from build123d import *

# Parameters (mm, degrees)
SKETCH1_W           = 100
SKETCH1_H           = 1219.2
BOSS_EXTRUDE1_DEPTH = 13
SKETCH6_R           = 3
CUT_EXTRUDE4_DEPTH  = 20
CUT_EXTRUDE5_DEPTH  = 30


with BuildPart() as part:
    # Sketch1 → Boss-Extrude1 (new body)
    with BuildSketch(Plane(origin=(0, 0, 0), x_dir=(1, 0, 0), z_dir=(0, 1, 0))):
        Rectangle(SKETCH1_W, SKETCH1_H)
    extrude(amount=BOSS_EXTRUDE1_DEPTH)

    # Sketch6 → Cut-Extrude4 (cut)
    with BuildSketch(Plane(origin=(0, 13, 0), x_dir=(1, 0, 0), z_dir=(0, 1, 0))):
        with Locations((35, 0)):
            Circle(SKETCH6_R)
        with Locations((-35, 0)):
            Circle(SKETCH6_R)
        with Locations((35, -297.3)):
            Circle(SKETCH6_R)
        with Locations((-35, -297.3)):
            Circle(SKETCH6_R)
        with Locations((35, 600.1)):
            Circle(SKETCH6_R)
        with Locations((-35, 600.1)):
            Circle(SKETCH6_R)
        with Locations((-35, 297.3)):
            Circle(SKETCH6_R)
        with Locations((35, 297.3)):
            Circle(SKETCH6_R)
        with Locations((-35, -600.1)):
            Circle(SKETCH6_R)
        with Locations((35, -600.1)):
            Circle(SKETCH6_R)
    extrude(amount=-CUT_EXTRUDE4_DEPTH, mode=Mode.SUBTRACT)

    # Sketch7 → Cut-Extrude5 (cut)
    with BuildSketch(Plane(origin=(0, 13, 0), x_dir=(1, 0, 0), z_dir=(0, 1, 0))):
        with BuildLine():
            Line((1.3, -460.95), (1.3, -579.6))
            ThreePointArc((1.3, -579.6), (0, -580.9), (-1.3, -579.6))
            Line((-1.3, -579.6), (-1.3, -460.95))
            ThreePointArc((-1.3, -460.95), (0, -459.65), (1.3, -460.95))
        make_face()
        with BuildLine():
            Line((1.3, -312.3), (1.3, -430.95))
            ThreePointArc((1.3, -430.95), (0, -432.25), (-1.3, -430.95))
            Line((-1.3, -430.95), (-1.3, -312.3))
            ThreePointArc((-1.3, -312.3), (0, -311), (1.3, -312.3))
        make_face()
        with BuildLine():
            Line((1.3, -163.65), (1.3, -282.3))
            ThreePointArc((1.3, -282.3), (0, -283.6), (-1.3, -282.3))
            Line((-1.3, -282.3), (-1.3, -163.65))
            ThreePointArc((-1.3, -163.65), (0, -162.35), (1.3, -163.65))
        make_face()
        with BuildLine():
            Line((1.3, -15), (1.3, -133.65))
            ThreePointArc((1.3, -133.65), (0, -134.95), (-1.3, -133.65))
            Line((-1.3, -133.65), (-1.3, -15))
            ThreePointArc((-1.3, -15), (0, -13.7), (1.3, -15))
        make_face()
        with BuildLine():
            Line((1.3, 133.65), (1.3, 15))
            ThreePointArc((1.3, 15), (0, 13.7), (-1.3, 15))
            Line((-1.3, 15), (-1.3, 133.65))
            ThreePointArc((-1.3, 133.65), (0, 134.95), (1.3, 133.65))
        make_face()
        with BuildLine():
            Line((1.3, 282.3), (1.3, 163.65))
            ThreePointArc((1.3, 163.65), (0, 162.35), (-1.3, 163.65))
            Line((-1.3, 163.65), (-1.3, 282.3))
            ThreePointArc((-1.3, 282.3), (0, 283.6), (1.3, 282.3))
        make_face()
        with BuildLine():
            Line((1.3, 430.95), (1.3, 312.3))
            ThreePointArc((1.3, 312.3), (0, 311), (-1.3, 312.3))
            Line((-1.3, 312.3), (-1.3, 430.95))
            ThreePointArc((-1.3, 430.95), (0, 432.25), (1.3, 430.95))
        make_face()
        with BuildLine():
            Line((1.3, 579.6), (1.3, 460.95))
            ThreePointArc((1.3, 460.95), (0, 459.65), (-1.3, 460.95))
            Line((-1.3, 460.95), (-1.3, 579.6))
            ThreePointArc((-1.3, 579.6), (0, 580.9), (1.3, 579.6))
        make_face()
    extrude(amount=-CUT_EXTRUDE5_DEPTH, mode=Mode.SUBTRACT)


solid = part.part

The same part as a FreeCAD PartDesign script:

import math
import FreeCAD as App
import Part
import Sketcher

doc = App.newDocument("Part")
body = doc.addObject("PartDesign::Body", "Body")

# Sketch on XZ plane
sketch1 = body.newObject("Sketcher::SketchObject", "Sketch")
sketch1.AttachmentSupport = (doc.getObject("XZ_Plane"), [""])
sketch1.MapMode = "FlatFace"
sketch1.addGeometry(Part.LineSegment(App.Vector(-50, -609.6, 0), App.Vector(-50, 609.6, 0)), False)
sketch1.addGeometry(Part.LineSegment(App.Vector(-50, 609.6, 0), App.Vector(50, 609.6, 0)), False)
sketch1.addGeometry(Part.LineSegment(App.Vector(50, 609.6, 0), App.Vector(50, -609.6, 0)), False)
sketch1.addGeometry(Part.LineSegment(App.Vector(50, -609.6, 0), App.Vector(-50, -609.6, 0)), False)
sketch1.addConstraint(Sketcher.Constraint("Coincident", 0, 2, 1, 1))
sketch1.addConstraint(Sketcher.Constraint("Coincident", 1, 2, 2, 1))
sketch1.addConstraint(Sketcher.Constraint("Coincident", 2, 2, 3, 1))
sketch1.addConstraint(Sketcher.Constraint("Coincident", 3, 2, 0, 1))
sketch1.addConstraint(Sketcher.Constraint("Vertical", 0))
sketch1.addConstraint(Sketcher.Constraint("Horizontal", 1))
sketch1.addConstraint(Sketcher.Constraint("Vertical", 2))
sketch1.addConstraint(Sketcher.Constraint("Horizontal", 3))
sketch1.addConstraint(Sketcher.Constraint("Symmetric", 0, 2, 2, 2, -1, 1))
sketch1.addConstraint(Sketcher.Constraint("DistanceX", 1, 1, 1, 2, 100.0))
sketch1.addConstraint(Sketcher.Constraint("DistanceY", 0, 1, 0, 2, 1219.2))
pad1 = body.newObject("PartDesign::Pad", "Pad")
pad1.Profile = sketch1
pad1.Length = 13
pad1.Reversed = True

# Sketch on XZ plane
sketch2 = body.newObject("Sketcher::SketchObject", "Sketch001")
sketch2.AttachmentSupport = (doc.getObject("XZ_Plane"), [""])
sketch2.MapMode = "FlatFace"
sketch2.AttachmentOffset = App.Placement(App.Vector(0, 0, -13), App.Rotation())
sketch2.addGeometry(Part.Circle(App.Vector(35, 0, 0), App.Vector(0, 0, 1), 3), False)
sketch2.addGeometry(Part.Circle(App.Vector(-35, 0, 0), App.Vector(0, 0, 1), 3), False)
sketch2.addGeometry(Part.Circle(App.Vector(35, 297.3, 0), App.Vector(0, 0, 1), 3), False)
sketch2.addGeometry(Part.Circle(App.Vector(-35, 297.3, 0), App.Vector(0, 0, 1), 3), False)
sketch2.addGeometry(Part.Circle(App.Vector(35, -600.1, 0), App.Vector(0, 0, 1), 3), False)
sketch2.addGeometry(Part.Circle(App.Vector(-35, -600.1, 0), App.Vector(0, 0, 1), 3), False)
sketch2.addGeometry(Part.Circle(App.Vector(-35, -297.3, 0), App.Vector(0, 0, 1), 3), False)
sketch2.addGeometry(Part.Circle(App.Vector(35, -297.3, 0), App.Vector(0, 0, 1), 3), False)
sketch2.addGeometry(Part.Circle(App.Vector(-35, 600.1, 0), App.Vector(0, 0, 1), 3), False)
sketch2.addGeometry(Part.Circle(App.Vector(35, 600.1, 0), App.Vector(0, 0, 1), 3), False)
sketch2.addConstraint(Sketcher.Constraint("Equal", 0, 1))
sketch2.addConstraint(Sketcher.Constraint("Equal", 1, 2))
sketch2.addConstraint(Sketcher.Constraint("Equal", 2, 3))
sketch2.addConstraint(Sketcher.Constraint("Equal", 3, 4))
sketch2.addConstraint(Sketcher.Constraint("Equal", 4, 5))
sketch2.addConstraint(Sketcher.Constraint("Equal", 5, 6))
sketch2.addConstraint(Sketcher.Constraint("Equal", 6, 7))
sketch2.addConstraint(Sketcher.Constraint("Equal", 7, 8))
sketch2.addConstraint(Sketcher.Constraint("Equal", 8, 9))
sketch2.addConstraint(Sketcher.Constraint("Symmetric", 0, 3, 1, 3, -1, 1))
sketch2.addConstraint(Sketcher.Constraint("Symmetric", 2, 3, 6, 3, -1, 1))
sketch2.addConstraint(Sketcher.Constraint("Symmetric", 3, 3, 7, 3, -1, 1))
sketch2.addConstraint(Sketcher.Constraint("Symmetric", 4, 3, 8, 3, -1, 1))
sketch2.addConstraint(Sketcher.Constraint("Symmetric", 5, 3, 9, 3, -1, 1))
sketch2.addConstraint(Sketcher.Constraint("Symmetric", 2, 3, 3, 3, -2))
sketch2.addConstraint(Sketcher.Constraint("Symmetric", 4, 3, 5, 3, -2))
sketch2.addConstraint(Sketcher.Constraint("PointOnObject", 0, 3, -1))
sketch2.addConstraint(Sketcher.Constraint("Vertical", 0, 3, 2, 3))
sketch2.addConstraint(Sketcher.Constraint("Vertical", 2, 3, 4, 3))
sketch2.addConstraint(Sketcher.Constraint("Diameter", 0, 6.0))
sketch2.addConstraint(Sketcher.Constraint("DistanceX", -1, 1, 0, 3, 35.0))
sketch2.addConstraint(Sketcher.Constraint("DistanceY", -1, 1, 2, 3, 297.3))
sketch2.addConstraint(Sketcher.Constraint("DistanceY", 4, 3, -1, 1, 600.1))
pocket1 = body.newObject("PartDesign::Pocket", "Pocket")
pocket1.Profile = sketch2
pocket1.Length = 20
pocket1.Reversed = True

# Sketch on XZ plane
sketch3 = body.newObject("Sketcher::SketchObject", "Sketch002")
sketch3.AttachmentSupport = (doc.getObject("XZ_Plane"), [""])
sketch3.MapMode = "FlatFace"
sketch3.AttachmentOffset = App.Placement(App.Vector(0, 0, -13), App.Rotation())
sketch3.addGeometry(Part.LineSegment(App.Vector(1.3, 579.6, 0), App.Vector(1.3, 460.95, 0)), False)
sketch3.addGeometry(Part.ArcOfCircle(Part.Circle(App.Vector(0, 460.95, 0), App.Vector(0, 0, 1), 1.3), math.radians(180), math.radians(360)), False)
sketch3.addGeometry(Part.LineSegment(App.Vector(-1.3, 460.95, 0), App.Vector(-1.3, 579.6, 0)), False)
sketch3.addGeometry(Part.ArcOfCircle(Part.Circle(App.Vector(0, 579.6, 0), App.Vector(0, 0, 1), 1.3), math.radians(0), math.radians(180)), False)
sketch3.addGeometry(Part.LineSegment(App.Vector(1.3, 430.95, 0), App.Vector(1.3, 312.3, 0)), False)
sketch3.addGeometry(Part.ArcOfCircle(Part.Circle(App.Vector(0, 312.3, 0), App.Vector(0, 0, 1), 1.3), math.radians(180), math.radians(360)), False)
sketch3.addGeometry(Part.LineSegment(App.Vector(-1.3, 312.3, 0), App.Vector(-1.3, 430.95, 0)), False)
sketch3.addGeometry(Part.ArcOfCircle(Part.Circle(App.Vector(0, 430.95, 0), App.Vector(0, 0, 1), 1.3), math.radians(0), math.radians(180)), False)
sketch3.addGeometry(Part.LineSegment(App.Vector(1.3, 282.3, 0), App.Vector(1.3, 163.65, 0)), False)
sketch3.addGeometry(Part.ArcOfCircle(Part.Circle(App.Vector(0, 163.65, 0), App.Vector(0, 0, 1), 1.3), math.radians(180), math.radians(360)), False)
sketch3.addGeometry(Part.LineSegment(App.Vector(-1.3, 163.65, 0), App.Vector(-1.3, 282.3, 0)), False)
sketch3.addGeometry(Part.ArcOfCircle(Part.Circle(App.Vector(0, 282.3, 0), App.Vector(0, 0, 1), 1.3), math.radians(0), math.radians(180)), False)
sketch3.addGeometry(Part.LineSegment(App.Vector(1.3, 133.65, 0), App.Vector(1.3, 15, 0)), False)
sketch3.addGeometry(Part.ArcOfCircle(Part.Circle(App.Vector(0, 15, 0), App.Vector(0, 0, 1), 1.3), math.radians(180), math.radians(360)), False)
sketch3.addGeometry(Part.LineSegment(App.Vector(-1.3, 15, 0), App.Vector(-1.3, 133.65, 0)), False)
sketch3.addGeometry(Part.ArcOfCircle(Part.Circle(App.Vector(0, 133.65, 0), App.Vector(0, 0, 1), 1.3), math.radians(0), math.radians(180)), False)
sketch3.addGeometry(Part.LineSegment(App.Vector(1.3, -15, 0), App.Vector(1.3, -133.65, 0)), False)
sketch3.addGeometry(Part.ArcOfCircle(Part.Circle(App.Vector(0, -133.65, 0), App.Vector(0, 0, 1), 1.3), math.radians(180), math.radians(360)), False)
sketch3.addGeometry(Part.LineSegment(App.Vector(-1.3, -133.65, 0), App.Vector(-1.3, -15, 0)), False)
sketch3.addGeometry(Part.ArcOfCircle(Part.Circle(App.Vector(0, -15, 0), App.Vector(0, 0, 1), 1.3), math.radians(0), math.radians(180)), False)
sketch3.addGeometry(Part.LineSegment(App.Vector(1.3, -163.65, 0), App.Vector(1.3, -282.3, 0)), False)
sketch3.addGeometry(Part.ArcOfCircle(Part.Circle(App.Vector(0, -282.3, 0), App.Vector(0, 0, 1), 1.3), math.radians(180), math.radians(360)), False)
sketch3.addGeometry(Part.LineSegment(App.Vector(-1.3, -282.3, 0), App.Vector(-1.3, -163.65, 0)), False)
sketch3.addGeometry(Part.ArcOfCircle(Part.Circle(App.Vector(0, -163.65, 0), App.Vector(0, 0, 1), 1.3), math.radians(0), math.radians(180)), False)
sketch3.addGeometry(Part.LineSegment(App.Vector(1.3, -312.3, 0), App.Vector(1.3, -430.95, 0)), False)
sketch3.addGeometry(Part.ArcOfCircle(Part.Circle(App.Vector(0, -430.95, 0), App.Vector(0, 0, 1), 1.3), math.radians(180), math.radians(360)), False)
sketch3.addGeometry(Part.LineSegment(App.Vector(-1.3, -430.95, 0), App.Vector(-1.3, -312.3, 0)), False)
sketch3.addGeometry(Part.ArcOfCircle(Part.Circle(App.Vector(0, -312.3, 0), App.Vector(0, 0, 1), 1.3), math.radians(0), math.radians(180)), False)
sketch3.addGeometry(Part.LineSegment(App.Vector(1.3, -460.95, 0), App.Vector(1.3, -579.6, 0)), False)
sketch3.addGeometry(Part.ArcOfCircle(Part.Circle(App.Vector(0, -579.6, 0), App.Vector(0, 0, 1), 1.3), math.radians(180), math.radians(360)), False)
sketch3.addGeometry(Part.LineSegment(App.Vector(-1.3, -579.6, 0), App.Vector(-1.3, -460.95, 0)), False)
sketch3.addGeometry(Part.ArcOfCircle(Part.Circle(App.Vector(0, -460.95, 0), App.Vector(0, 0, 1), 1.3), math.radians(0), math.radians(180)), False)
sketch3.addConstraint(Sketcher.Constraint("Tangent", 0, 2, 1, 2))
sketch3.addConstraint(Sketcher.Constraint("Tangent", 1, 1, 2, 1))
sketch3.addConstraint(Sketcher.Constraint("Tangent", 2, 2, 3, 2))
sketch3.addConstraint(Sketcher.Constraint("Tangent", 3, 1, 0, 1))
sketch3.addConstraint(Sketcher.Constraint("Tangent", 4, 2, 5, 2))
sketch3.addConstraint(Sketcher.Constraint("Tangent", 5, 1, 6, 1))
sketch3.addConstraint(Sketcher.Constraint("Tangent", 6, 2, 7, 2))
sketch3.addConstraint(Sketcher.Constraint("Tangent", 7, 1, 4, 1))
sketch3.addConstraint(Sketcher.Constraint("Tangent", 8, 2, 9, 2))
sketch3.addConstraint(Sketcher.Constraint("Tangent", 9, 1, 10, 1))
sketch3.addConstraint(Sketcher.Constraint("Tangent", 10, 2, 11, 2))
sketch3.addConstraint(Sketcher.Constraint("Tangent", 11, 1, 8, 1))
sketch3.addConstraint(Sketcher.Constraint("Tangent", 12, 2, 13, 2))
sketch3.addConstraint(Sketcher.Constraint("Tangent", 13, 1, 14, 1))
sketch3.addConstraint(Sketcher.Constraint("Tangent", 14, 2, 15, 2))
sketch3.addConstraint(Sketcher.Constraint("Tangent", 15, 1, 12, 1))
sketch3.addConstraint(Sketcher.Constraint("Tangent", 16, 2, 17, 2))
sketch3.addConstraint(Sketcher.Constraint("Tangent", 17, 1, 18, 1))
sketch3.addConstraint(Sketcher.Constraint("Tangent", 18, 2, 19, 2))
sketch3.addConstraint(Sketcher.Constraint("Tangent", 19, 1, 16, 1))
sketch3.addConstraint(Sketcher.Constraint("Tangent", 20, 2, 21, 2))
sketch3.addConstraint(Sketcher.Constraint("Tangent", 21, 1, 22, 1))
sketch3.addConstraint(Sketcher.Constraint("Tangent", 22, 2, 23, 2))
sketch3.addConstraint(Sketcher.Constraint("Tangent", 23, 1, 20, 1))
sketch3.addConstraint(Sketcher.Constraint("Tangent", 24, 2, 25, 2))
sketch3.addConstraint(Sketcher.Constraint("Tangent", 25, 1, 26, 1))
sketch3.addConstraint(Sketcher.Constraint("Tangent", 26, 2, 27, 2))
sketch3.addConstraint(Sketcher.Constraint("Tangent", 27, 1, 24, 1))
sketch3.addConstraint(Sketcher.Constraint("Tangent", 28, 2, 29, 2))
sketch3.addConstraint(Sketcher.Constraint("Tangent", 29, 1, 30, 1))
sketch3.addConstraint(Sketcher.Constraint("Tangent", 30, 2, 31, 2))
sketch3.addConstraint(Sketcher.Constraint("Tangent", 31, 1, 28, 1))
sketch3.addConstraint(Sketcher.Constraint("Vertical", 0))
sketch3.addConstraint(Sketcher.Constraint("Vertical", 2))
sketch3.addConstraint(Sketcher.Constraint("Vertical", 4))
sketch3.addConstraint(Sketcher.Constraint("Vertical", 6))
sketch3.addConstraint(Sketcher.Constraint("Vertical", 8))
sketch3.addConstraint(Sketcher.Constraint("Vertical", 10))
sketch3.addConstraint(Sketcher.Constraint("Vertical", 12))
sketch3.addConstraint(Sketcher.Constraint("Vertical", 14))
sketch3.addConstraint(Sketcher.Constraint("Vertical", 16))
sketch3.addConstraint(Sketcher.Constraint("Vertical", 18))
sketch3.addConstraint(Sketcher.Constraint("Vertical", 20))
sketch3.addConstraint(Sketcher.Constraint("Vertical", 22))
sketch3.addConstraint(Sketcher.Constraint("Vertical", 24))
sketch3.addConstraint(Sketcher.Constraint("Vertical", 26))
sketch3.addConstraint(Sketcher.Constraint("Vertical", 28))
sketch3.addConstraint(Sketcher.Constraint("Vertical", 30))
sketch3.addConstraint(Sketcher.Constraint("Equal", 3, 5))
sketch3.addConstraint(Sketcher.Constraint("Equal", 7, 9))
sketch3.addConstraint(Sketcher.Constraint("Equal", 11, 13))
sketch3.addConstraint(Sketcher.Constraint("Equal", 15, 17))
sketch3.addConstraint(Sketcher.Constraint("Equal", 19, 21))
sketch3.addConstraint(Sketcher.Constraint("Equal", 23, 25))
sketch3.addConstraint(Sketcher.Constraint("Equal", 27, 29))
sketch3.addConstraint(Sketcher.Constraint("Symmetric", 15, 3, 17, 3, -1, 1))
sketch3.addConstraint(Sketcher.Constraint("Symmetric", 11, 3, 21, 3, -1, 1))
sketch3.addConstraint(Sketcher.Constraint("Symmetric", 7, 3, 25, 3, -1, 1))
sketch3.addConstraint(Sketcher.Constraint("Symmetric", 3, 3, 29, 3, -1, 1))
sketch3.addConstraint(Sketcher.Constraint("Symmetric", 13, 3, 19, 3, -1))
sketch3.addConstraint(Sketcher.Constraint("Symmetric", 9, 3, 23, 3, -1))
sketch3.addConstraint(Sketcher.Constraint("Symmetric", 5, 3, 27, 3, -1))
sketch3.addConstraint(Sketcher.Constraint("Symmetric", 1, 3, 31, 3, -1))
sketch3.addConstraint(Sketcher.Constraint("Equal", 2, 4))
sketch3.addConstraint(Sketcher.Constraint("Equal", 6, 8))
sketch3.addConstraint(Sketcher.Constraint("Equal", 10, 12))
sketch3.addConstraint(Sketcher.Constraint("Radius", 1, 1.3))
sketch3.addConstraint(Sketcher.Constraint("DistanceY", -1, 1, 13, 3, 15.0))
sketch3.addConstraint(Sketcher.Constraint("DistanceY", 7, 3, 1, 3, 30.0))
sketch3.addConstraint(Sketcher.Constraint("DistanceY", 11, 3, 5, 3, 30.0))
sketch3.addConstraint(Sketcher.Constraint("DistanceY", 15, 3, 9, 3, 30.0))
sketch3.addConstraint(Sketcher.Constraint("DistanceY", 0, 2, 0, 1, 118.65))
pocket2 = body.newObject("PartDesign::Pocket", "Pocket001")
pocket2.Profile = sketch3
pocket2.Length = 30
pocket2.Reversed = True

doc.recompute()
